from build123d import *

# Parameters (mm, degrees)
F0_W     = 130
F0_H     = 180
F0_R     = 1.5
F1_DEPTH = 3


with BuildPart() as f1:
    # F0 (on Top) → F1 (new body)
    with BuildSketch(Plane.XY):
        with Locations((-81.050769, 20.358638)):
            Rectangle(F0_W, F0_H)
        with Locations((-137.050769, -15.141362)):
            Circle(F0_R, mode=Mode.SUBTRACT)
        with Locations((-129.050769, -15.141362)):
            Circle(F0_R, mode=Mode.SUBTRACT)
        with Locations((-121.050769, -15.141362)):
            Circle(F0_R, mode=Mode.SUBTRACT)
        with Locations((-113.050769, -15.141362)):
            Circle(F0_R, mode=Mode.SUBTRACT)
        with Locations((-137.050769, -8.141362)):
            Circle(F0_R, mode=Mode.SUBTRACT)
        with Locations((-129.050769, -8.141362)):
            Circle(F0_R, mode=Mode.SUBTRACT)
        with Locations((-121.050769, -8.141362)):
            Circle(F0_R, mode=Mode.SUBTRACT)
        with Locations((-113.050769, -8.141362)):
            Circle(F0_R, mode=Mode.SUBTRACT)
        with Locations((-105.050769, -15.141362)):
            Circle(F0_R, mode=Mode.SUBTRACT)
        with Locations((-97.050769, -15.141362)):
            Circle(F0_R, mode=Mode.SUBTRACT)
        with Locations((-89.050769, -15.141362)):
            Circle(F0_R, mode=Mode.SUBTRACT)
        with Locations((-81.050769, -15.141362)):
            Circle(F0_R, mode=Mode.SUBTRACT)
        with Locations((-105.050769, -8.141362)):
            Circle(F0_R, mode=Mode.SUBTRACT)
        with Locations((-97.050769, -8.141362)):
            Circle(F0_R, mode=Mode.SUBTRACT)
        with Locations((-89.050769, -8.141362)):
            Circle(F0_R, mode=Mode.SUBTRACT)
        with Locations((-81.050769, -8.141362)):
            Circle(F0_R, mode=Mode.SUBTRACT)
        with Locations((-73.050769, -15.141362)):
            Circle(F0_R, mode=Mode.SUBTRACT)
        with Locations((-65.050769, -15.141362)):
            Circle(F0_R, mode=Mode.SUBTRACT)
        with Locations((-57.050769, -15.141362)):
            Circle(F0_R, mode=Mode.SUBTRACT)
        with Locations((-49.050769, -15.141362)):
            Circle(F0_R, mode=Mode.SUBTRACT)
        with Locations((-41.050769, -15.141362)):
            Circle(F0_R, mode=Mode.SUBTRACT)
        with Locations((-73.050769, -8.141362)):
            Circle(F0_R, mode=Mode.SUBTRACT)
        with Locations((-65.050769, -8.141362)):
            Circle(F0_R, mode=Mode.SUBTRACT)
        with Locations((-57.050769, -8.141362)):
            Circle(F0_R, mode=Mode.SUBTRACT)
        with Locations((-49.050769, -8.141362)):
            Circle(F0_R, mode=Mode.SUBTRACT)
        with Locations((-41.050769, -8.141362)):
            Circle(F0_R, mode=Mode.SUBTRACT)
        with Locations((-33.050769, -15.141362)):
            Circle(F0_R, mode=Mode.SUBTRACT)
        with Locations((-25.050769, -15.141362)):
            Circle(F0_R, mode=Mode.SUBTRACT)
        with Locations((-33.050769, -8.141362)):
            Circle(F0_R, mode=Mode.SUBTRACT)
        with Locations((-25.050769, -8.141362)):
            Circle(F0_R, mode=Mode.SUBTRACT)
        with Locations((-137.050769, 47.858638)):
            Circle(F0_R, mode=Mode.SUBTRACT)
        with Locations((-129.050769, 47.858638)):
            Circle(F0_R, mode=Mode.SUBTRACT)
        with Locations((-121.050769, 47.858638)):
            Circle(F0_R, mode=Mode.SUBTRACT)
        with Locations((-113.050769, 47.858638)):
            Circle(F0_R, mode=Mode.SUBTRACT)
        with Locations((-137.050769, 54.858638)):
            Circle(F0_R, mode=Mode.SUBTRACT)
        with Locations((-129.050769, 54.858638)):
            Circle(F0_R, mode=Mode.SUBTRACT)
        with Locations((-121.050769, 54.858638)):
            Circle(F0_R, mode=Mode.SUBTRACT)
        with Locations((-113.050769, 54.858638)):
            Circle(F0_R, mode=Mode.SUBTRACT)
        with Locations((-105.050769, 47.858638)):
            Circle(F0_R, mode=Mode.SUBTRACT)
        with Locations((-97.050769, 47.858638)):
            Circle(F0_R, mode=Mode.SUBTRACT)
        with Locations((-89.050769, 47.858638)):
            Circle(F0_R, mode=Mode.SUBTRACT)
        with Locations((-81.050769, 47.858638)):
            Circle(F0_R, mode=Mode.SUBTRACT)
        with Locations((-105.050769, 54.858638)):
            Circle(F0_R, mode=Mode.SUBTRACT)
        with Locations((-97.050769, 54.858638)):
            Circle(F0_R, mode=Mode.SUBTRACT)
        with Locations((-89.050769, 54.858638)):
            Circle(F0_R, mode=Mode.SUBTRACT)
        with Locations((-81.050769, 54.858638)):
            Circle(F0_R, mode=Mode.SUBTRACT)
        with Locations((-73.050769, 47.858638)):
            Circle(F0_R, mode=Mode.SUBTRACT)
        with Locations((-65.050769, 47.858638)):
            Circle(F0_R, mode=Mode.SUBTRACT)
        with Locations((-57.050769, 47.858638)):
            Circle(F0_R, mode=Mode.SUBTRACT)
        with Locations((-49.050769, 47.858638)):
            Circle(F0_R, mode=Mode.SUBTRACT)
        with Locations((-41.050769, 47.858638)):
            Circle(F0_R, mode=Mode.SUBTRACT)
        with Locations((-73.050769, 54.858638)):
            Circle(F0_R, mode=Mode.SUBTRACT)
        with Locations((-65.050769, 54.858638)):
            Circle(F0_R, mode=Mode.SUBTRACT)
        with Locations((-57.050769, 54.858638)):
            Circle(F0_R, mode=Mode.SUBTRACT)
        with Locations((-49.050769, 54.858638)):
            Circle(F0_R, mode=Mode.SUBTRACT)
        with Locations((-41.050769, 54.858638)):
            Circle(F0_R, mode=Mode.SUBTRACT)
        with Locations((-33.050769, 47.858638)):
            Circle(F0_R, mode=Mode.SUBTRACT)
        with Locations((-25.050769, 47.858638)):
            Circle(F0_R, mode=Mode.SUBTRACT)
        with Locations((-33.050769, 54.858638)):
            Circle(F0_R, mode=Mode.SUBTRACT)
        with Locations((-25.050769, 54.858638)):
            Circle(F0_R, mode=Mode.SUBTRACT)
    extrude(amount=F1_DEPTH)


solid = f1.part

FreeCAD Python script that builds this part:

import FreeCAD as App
import Part
import Sketcher
from FreeCAD import Vector
Q = App.Units.Quantity


def add_polygon(sketch, points):
    """Adds a closed chain of lines whose ends are joined by coincident constraints."""
    first, n = sketch.GeometryCount, len(points)
    for a, b in zip(points, points[1:] + points[:1]):
        sketch.addGeometry(Part.LineSegment(App.Vector(*a, 0), App.Vector(*b, 0)), False)
    for i in range(n):
        sketch.addConstraint(Sketcher.Constraint("Coincident", first + i, 2, first + (i + 1) % n, 1))

doc = App.newDocument("Part")
body = doc.addObject("PartDesign::Body", "Body")

sketch1 = doc.addObject("Sketcher::SketchObject", "Sketch")
body.addObject(sketch1)
sketch1.AttachmentSupport = (doc.XY_Plane, [""])
sketch1.MapMode = "FlatFace"
add_polygon(sketch1, [(-146.1, 110.4), (-146.1, -69.6), (-16.1, -69.6), (-16.1, 110.4)])
sketch1.addGeometry(Part.Circle(Vector(-137.1, -15.1, 0), Vector(0, 0, 1), 1.5), False)
sketch1.addGeometry(Part.Circle(Vector(-129.1, -15.1, 0), Vector(0, 0, 1), 1.5), False)
sketch1.addGeometry(Part.Circle(Vector(-137.1, -8.1, 0), Vector(0, 0, 1), 1.5), False)
sketch1.addGeometry(Part.Circle(Vector(-129.1, -8.1, 0), Vector(0, 0, 1), 1.5), False)
sketch1.addGeometry(Part.Circle(Vector(-121.1, -15.1, 0), Vector(0, 0, 1), 1.5), False)
sketch1.addGeometry(Part.Circle(Vector(-113.1, -15.1, 0), Vector(0, 0, 1), 1.5), False)
sketch1.addGeometry(Part.Circle(Vector(-121.1, -8.1, 0), Vector(0, 0, 1), 1.5), False)
sketch1.addGeometry(Part.Circle(Vector(-113.1, -8.1, 0), Vector(0, 0, 1), 1.5), False)
sketch1.addGeometry(Part.Circle(Vector(-105.1, -15.1, 0), Vector(0, 0, 1), 1.5), False)
sketch1.addGeometry(Part.Circle(Vector(-97.1, -15.1, 0), Vector(0, 0, 1), 1.5), False)
sketch1.addGeometry(Part.Circle(Vector(-105.1, -8.1, 0), Vector(0, 0, 1), 1.5), False)
sketch1.addGeometry(Part.Circle(Vector(-97.1, -8.1, 0), Vector(0, 0, 1), 1.5), False)
sketch1.addGeometry(Part.Circle(Vector(-89.1, -15.1, 0), Vector(0, 0, 1), 1.5), False)
sketch1.addGeometry(Part.Circle(Vector(-89.1, -8.1, 0), Vector(0, 0, 1), 1.5), False)
sketch1.addGeometry(Part.Circle(Vector(-81.1, -15.1, 0), Vector(0, 0, 1), 1.5), False)
sketch1.addGeometry(Part.Circle(Vector(-73.1, -15.1, 0), Vector(0, 0, 1), 1.5), False)
sketch1.addGeometry(Part.Circle(Vector(-81.1, -8.1, 0), Vector(0, 0, 1), 1.5), False)
sketch1.addGeometry(Part.Circle(Vector(-73.1, -8.1, 0), Vector(0, 0, 1), 1.5), False)
sketch1.addGeometry(Part.Circle(Vector(-65.1, -15.1, 0), Vector(0, 0, 1), 1.5), False)
sketch1.addGeometry(Part.Circle(Vector(-57.1, -15.1, 0), Vector(0, 0, 1), 1.5), False)
sketch1.addGeometry(Part.Circle(Vector(-65.1, -8.1, 0), Vector(0, 0, 1), 1.5), False)
sketch1.addGeometry(Part.Circle(Vector(-57.1, -8.1, 0), Vector(0, 0, 1), 1.5), False)
sketch1.addGeometry(Part.Circle(Vector(-49.1, -15.1, 0), Vector(0, 0, 1), 1.5), False)
sketch1.addGeometry(Part.Circle(Vector(-41.1, -15.1, 0), Vector(0, 0, 1), 1.5), False)
sketch1.addGeometry(Part.Circle(Vector(-49.1, -8.1, 0), Vector(0, 0, 1), 1.5), False)
sketch1.addGeometry(Part.Circle(Vector(-41.1, -8.1, 0), Vector(0, 0, 1), 1.5), False)
sketch1.addGeometry(Part.Circle(Vector(-33.1, -15.1, 0), Vector(0, 0, 1), 1.5), False)
sketch1.addGeometry(Part.Circle(Vector(-25.1, -15.1, 0), Vector(0, 0, 1), 1.5), False)
sketch1.addGeometry(Part.Circle(Vector(-33.1, -8.1, 0), Vector(0, 0, 1), 1.5), False)
sketch1.addGeometry(Part.Circle(Vector(-25.1, -8.1, 0), Vector(0, 0, 1), 1.5), False)
sketch1.addGeometry(Part.Circle(Vector(-137.1, 47.9, 0), Vector(0, 0, 1), 1.5), False)
sketch1.addGeometry(Part.Circle(Vector(-129.1, 47.9, 0), Vector(0, 0, 1), 1.5), False)
sketch1.addGeometry(Part.Circle(Vector(-137.1, 54.9, 0), Vector(0, 0, 1), 1.5), False)
sketch1.addGeometry(Part.Circle(Vector(-129.1, 54.9, 0), Vector(0, 0, 1), 1.5), False)
sketch1.addGeometry(Part.Circle(Vector(-121.1, 47.9, 0), Vector(0, 0, 1), 1.5), False)
sketch1.addGeometry(Part.Circle(Vector(-113.1, 47.9, 0), Vector(0, 0, 1), 1.5), False)
sketch1.addGeometry(Part.Circle(Vector(-121.1, 54.9, 0), Vector(0, 0, 1), 1.5), False)
sketch1.addGeometry(Part.Circle(Vector(-113.1, 54.9, 0), Vector(0, 0, 1), 1.5), False)
sketch1.addGeometry(Part.Circle(Vector(-105.1, 47.9, 0), Vector(0, 0, 1), 1.5), False)
sketch1.addGeometry(Part.Circle(Vector(-97.1, 47.9, 0), Vector(0, 0, 1), 1.5), False)
sketch1.addGeometry(Part.Circle(Vector(-105.1, 54.9, 0), Vector(0, 0, 1), 1.5), False)
sketch1.addGeometry(Part.Circle(Vector(-97.1, 54.9, 0), Vector(0, 0, 1), 1.5), False)
sketch1.addGeometry(Part.Circle(Vector(-89.1, 47.9, 0), Vector(0, 0, 1), 1.5), False)
sketch1.addGeometry(Part.Circle(Vector(-89.1, 54.9, 0), Vector(0, 0, 1), 1.5), False)
sketch1.addGeometry(Part.Circle(Vector(-81.1, 47.9, 0), Vector(0, 0, 1), 1.5), False)
sketch1.addGeometry(Part.Circle(Vector(-73.1, 47.9, 0), Vector(0, 0, 1), 1.5), False)
sketch1.addGeometry(Part.Circle(Vector(-81.1, 54.9, 0), Vector(0, 0, 1), 1.5), False)
sketch1.addGeometry(Part.Circle(Vector(-73.1, 54.9, 0), Vector(0, 0, 1), 1.5), False)
sketch1.addGeometry(Part.Circle(Vector(-65.1, 47.9, 0), Vector(0, 0, 1), 1.5), False)
sketch1.addGeometry(Part.Circle(Vector(-57.1, 47.9, 0), Vector(0, 0, 1), 1.5), False)
sketch1.addGeometry(Part.Circle(Vector(-65.1, 54.9, 0), Vector(0, 0, 1), 1.5), False)
sketch1.addGeometry(Part.Circle(Vector(-57.1, 54.9, 0), Vector(0, 0, 1), 1.5), False)
sketch1.addGeometry(Part.Circle(Vector(-49.1, 47.9, 0), Vector(0, 0, 1), 1.5), False)
sketch1.addGeometry(Part.Circle(Vector(-41.1, 47.9, 0), Vector(0, 0, 1), 1.5), False)
sketch1.addGeometry(Part.Circle(Vector(-49.1, 54.9, 0), Vector(0, 0, 1), 1.5), False)
sketch1.addGeometry(Part.Circle(Vector(-41.1, 54.9, 0), Vector(0, 0, 1), 1.5), False)
sketch1.addGeometry(Part.Circle(Vector(-33.1, 47.9, 0), Vector(0, 0, 1), 1.5), False)
sketch1.addGeometry(Part.Circle(Vector(-25.1, 47.9, 0), Vector(0, 0, 1), 1.5), False)
sketch1.addGeometry(Part.Circle(Vector(-33.1, 54.9, 0), Vector(0, 0, 1), 1.5), False)
sketch1.addGeometry(Part.Circle(Vector(-25.1, 54.9, 0), Vector(0, 0, 1), 1.5), False)
sketch1.addConstraint([
    Sketcher.Constraint("Vertical", 0),
    Sketcher.Constraint("Horizontal", 1),
    Sketcher.Constraint("Vertical", 2),
    Sketcher.Constraint("Horizontal", 3),
    Sketcher.Constraint("Equal", 4, 5),
    Sketcher.Constraint("Equal", 5, 6),
    Sketcher.Constraint("Equal", 6, 7),
    Sketcher.Constraint("Equal", 7, 8),
    Sketcher.Constraint("Equal", 8, 9),
    Sketcher.Constraint("Equal", 9, 10),
    Sketcher.Constraint("Equal", 10, 11),
    Sketcher.Constraint("Equal", 11, 12),
    Sketcher.Constraint("Equal", 12, 13),
    Sketcher.Constraint("Equal", 13, 14),
    Sketcher.Constraint("Equal", 14, 15),
    Sketcher.Constraint("Equal", 15, 16),
    Sketcher.Constraint("Equal", 16, 17),
    Sketcher.Constraint("Equal", 17, 18),
    Sketcher.Constraint("Equal", 18, 19),
    Sketcher.Constraint("Equal", 19, 20),
    Sketcher.Constraint("Equal", 20, 21),
    Sketcher.Constraint("Equal", 21, 22),
    Sketcher.Constraint("Equal", 22, 23),
    Sketcher.Constraint("Equal", 23, 24),
    Sketcher.Constraint("Equal", 24, 25),
    Sketcher.Constraint("Equal", 25, 26),
    Sketcher.Constraint("Equal", 26, 27),
    Sketcher.Constraint("Equal", 27, 28),
    Sketcher.Constraint("Equal", 28, 29),
    Sketcher.Constraint("Equal", 29, 30),
    Sketcher.Constraint("Equal", 30, 31),
    Sketcher.Constraint("Equal", 31, 32),
    Sketcher.Constraint("Equal", 32, 33),
    Sketcher.Constraint("Equal", 33, 34),
    Sketcher.Constraint("Equal", 34, 35),
    Sketcher.Constraint("Equal", 35, 36),
    Sketcher.Constraint("Equal", 36, 37),
    Sketcher.Constraint("Equal", 37, 38),
    Sketcher.Constraint("Equal", 38, 39),
    Sketcher.Constraint("Equal", 39, 40),
    Sketcher.Constraint("Equal", 40, 41),
    Sketcher.Constraint("Equal", 41, 42),
    Sketcher.Constraint("Equal", 42, 43),
    Sketcher.Constraint("Equal", 43, 44),
    Sketcher.Constraint("Equal", 44, 45),
    Sketcher.Constraint("Equal", 45, 46),
    Sketcher.Constraint("Equal", 46, 47),
    Sketcher.Constraint("Equal", 47, 48),
    Sketcher.Constraint("Equal", 48, 49),
    Sketcher.Constraint("Equal", 49, 50),
    Sketcher.Constraint("Equal", 50, 51),
    Sketcher.Constraint("Equal", 51, 52),
    Sketcher.Constraint("Equal", 52, 53),
    Sketcher.Constraint("Equal", 53, 54),
    Sketcher.Constraint("Equal", 54, 55),
    Sketcher.Constraint("Equal", 55, 56),
    Sketcher.Constraint("Equal", 56, 57),
    Sketcher.Constraint("Equal", 57, 58),
    Sketcher.Constraint("Equal", 58, 59),
    Sketcher.Constraint("Equal", 59, 60),
    Sketcher.Constraint("Equal", 60, 61),
    Sketcher.Constraint("Equal", 61, 62),
    Sketcher.Constraint("Equal", 62, 63),
    Sketcher.Constraint("Horizontal", 4, 3, 5, 3),
    Sketcher.Constraint("Horizontal", 6, 3, 7, 3),
    Sketcher.Constraint("Horizontal", 5, 3, 8, 3),
    Sketcher.Constraint("Horizontal", 8, 3, 9, 3),
    Sketcher.Constraint("Horizontal", 7, 3, 10, 3),
    Sketcher.Constraint("Horizontal", 10, 3, 11, 3),
    Sketcher.Constraint("Horizontal", 9, 3, 12, 3),
    Sketcher.Constraint("Horizontal", 12, 3, 13, 3),
    Sketcher.Constraint("Horizontal", 11, 3, 14, 3),
    Sketcher.Constraint("Horizontal", 14, 3, 15, 3),
    Sketcher.Constraint("Horizontal", 13, 3, 16, 3),
    Sketcher.Constraint("Horizontal", 15, 3, 17, 3),
    Sketcher.Constraint("Horizontal", 16, 3, 18, 3),
    Sketcher.Constraint("Horizontal", 18, 3, 19, 3),
    Sketcher.Constraint("Horizontal", 17, 3, 20, 3),
    Sketcher.Constraint("Horizontal", 20, 3, 21, 3),
    Sketcher.Constraint("Horizontal", 19, 3, 22, 3),
    Sketcher.Constraint("Horizontal", 22, 3, 23, 3),
    Sketcher.Constraint("Horizontal", 21, 3, 24, 3),
    Sketcher.Constraint("Horizontal", 24, 3, 25, 3),
    Sketcher.Constraint("Horizontal", 23, 3, 26, 3),
    Sketcher.Constraint("Horizontal", 26, 3, 27, 3),
    Sketcher.Constraint("Horizontal", 25, 3, 28, 3),
    Sketcher.Constraint("Horizontal", 28, 3, 29, 3),
    Sketcher.Constraint("Horizontal", 27, 3, 30, 3),
    Sketcher.Constraint("Horizontal", 30, 3, 31, 3),
    Sketcher.Constraint("Horizontal", 29, 3, 32, 3),
    Sketcher.Constraint("Horizontal", 32, 3, 33, 3),
    Sketcher.Constraint("Horizontal", 34, 3, 35, 3),
    Sketcher.Constraint("Horizontal", 36, 3, 37, 3),
    Sketcher.Constraint("Horizontal", 35, 3, 38, 3),
    Sketcher.Constraint("Horizontal", 38, 3, 39, 3),
    Sketcher.Constraint("Horizontal", 37, 3, 40, 3),
    Sketcher.Constraint("Horizontal", 40, 3, 41, 3),
    Sketcher.Constraint("Horizontal", 39, 3, 42, 3),
    Sketcher.Constraint("Horizontal", 42, 3, 43, 3),
    Sketcher.Constraint("Horizontal", 41, 3, 44, 3),
    Sketcher.Constraint("Horizontal", 44, 3, 45, 3),
    Sketcher.Constraint("Horizontal", 43, 3, 46, 3),
    Sketcher.Constraint("Horizontal", 45, 3, 47, 3),
    Sketcher.Constraint("Horizontal", 46, 3, 48, 3),
    Sketcher.Constraint("Horizontal", 48, 3, 49, 3),
    Sketcher.Constraint("Horizontal", 47, 3, 50, 3),
    Sketcher.Constraint("Horizontal", 50, 3, 51, 3),
    Sketcher.Constraint("Horizontal", 49, 3, 52, 3),
    Sketcher.Constraint("Horizontal", 52, 3, 53, 3),
    Sketcher.Constraint("Horizontal", 51, 3, 54, 3),
    Sketcher.Constraint("Horizontal", 54, 3, 55, 3),
    Sketcher.Constraint("Horizontal", 53, 3, 56, 3),
    Sketcher.Constraint("Horizontal", 56, 3, 57, 3),
    Sketcher.Constraint("Horizontal", 55, 3, 58, 3),
    Sketcher.Constraint("Horizontal", 58, 3, 59, 3),
    Sketcher.Constraint("Horizontal", 57, 3, 60, 3),
    Sketcher.Constraint("Horizontal", 60, 3, 61, 3),
    Sketcher.Constraint("Horizontal", 59, 3, 62, 3),
    Sketcher.Constraint("Horizontal", 62, 3, 63, 3),
    Sketcher.Constraint("Vertical", 4, 3, 6, 3),
    Sketcher.Constraint("Vertical", 5, 3, 7, 3),
    Sketcher.Constraint("Vertical", 8, 3, 10, 3),
    Sketcher.Constraint("Vertical", 9, 3, 11, 3),
    Sketcher.Constraint("Vertical", 12, 3, 14, 3),
    Sketcher.Constraint("Vertical", 13, 3, 15, 3),
    Sketcher.Constraint("Vertical", 16, 3, 17, 3),
    Sketcher.Constraint("Vertical", 18, 3, 20, 3),
    Sketcher.Constraint("Vertical", 19, 3, 21, 3),
    Sketcher.Constraint("Vertical", 22, 3, 24, 3),
    Sketcher.Constraint("Vertical", 23, 3, 25, 3),
    Sketcher.Constraint("Vertical", 26, 3, 28, 3),
    Sketcher.Constraint("Vertical", 27, 3, 29, 3),
    Sketcher.Constraint("Vertical", 30, 3, 32, 3),
    Sketcher.Constraint("Vertical", 31, 3, 33, 3),
    Sketcher.Constraint("Vertical", 6, 3, 34, 3),
    Sketcher.Constraint("Vertical", 7, 3, 35, 3),
    Sketcher.Constraint("Vertical", 34, 3, 36, 3),
    Sketcher.Constraint("Vertical", 35, 3, 37, 3),
    Sketcher.Constraint("Vertical", 10, 3, 38, 3),
    Sketcher.Constraint("Vertical", 11, 3, 39, 3),
    Sketcher.Constraint("Vertical", 38, 3, 40, 3),
    Sketcher.Constraint("Vertical", 39, 3, 41, 3),
    Sketcher.Constraint("Vertical", 14, 3, 42, 3),
    Sketcher.Constraint("Vertical", 15, 3, 43, 3),
    Sketcher.Constraint("Vertical", 42, 3, 44, 3),
    Sketcher.Constraint("Vertical", 43, 3, 45, 3),
    Sketcher.Constraint("Vertical", 17, 3, 46, 3),
    Sketcher.Constraint("Vertical", 46, 3, 47, 3),
    Sketcher.Constraint("Vertical", 20, 3, 48, 3),
    Sketcher.Constraint("Vertical", 21, 3, 49, 3),
    Sketcher.Constraint("Vertical", 48, 3, 50, 3),
    Sketcher.Constraint("Vertical", 49, 3, 51, 3),
    Sketcher.Constraint("Vertical", 24, 3, 52, 3),
    Sketcher.Constraint("Vertical", 25, 3, 53, 3),
    Sketcher.Constraint("Vertical", 52, 3, 54, 3),
    Sketcher.Constraint("Vertical", 53, 3, 55, 3),
    Sketcher.Constraint("Vertical", 28, 3, 56, 3),
    Sketcher.Constraint("Vertical", 29, 3, 57, 3),
    Sketcher.Constraint("Vertical", 56, 3, 58, 3),
    Sketcher.Constraint("Vertical", 57, 3, 59, 3),
    Sketcher.Constraint("Vertical", 32, 3, 60, 3),
    Sketcher.Constraint("Vertical", 33, 3, 61, 3),
    Sketcher.Constraint("Vertical", 60, 3, 62, 3),
    Sketcher.Constraint("Vertical", 61, 3, 63, 3),
    Sketcher.Constraint("Diameter", 4, Q("3 mm")),
    Sketcher.Constraint("DistanceX", 1, 1, 1, 2, Q("130 mm")),
    Sketcher.Constraint("DistanceY", 0, 2, 0, 1, Q("180 mm")),
    Sketcher.Constraint("DistanceX", 4, 3, -1, 1, Q("137.050769 mm")),
    Sketcher.Constraint("DistanceX", 5, 3, -1, 1, Q("129.050769 mm")),
    Sketcher.Constraint("DistanceX", 8, 3, -1, 1, Q("121.050769 mm")),
    Sketcher.Constraint("DistanceX", 9, 3, -1, 1, Q("113.050769 mm")),
    Sketcher.Constraint("DistanceX", 12, 3, -1, 1, Q("105.050769 mm")),
    Sketcher.Constraint("DistanceX", 13, 3, -1, 1, Q("97.050769 mm")),
    Sketcher.Constraint("DistanceX", 16, 3, -1, 1, Q("89.050769 mm")),
    Sketcher.Constraint("DistanceX", 18, 3, -1, 1, Q("81.050769 mm")),
    Sketcher.Constraint("DistanceX", 19, 3, -1, 1, Q("73.050769 mm")),
    Sketcher.Constraint("DistanceX", 22, 3, -1, 1, Q("65.050769 mm")),
    Sketcher.Constraint("DistanceX", 23, 3, -1, 1, Q("57.050769 mm")),
    Sketcher.Constraint("DistanceX", 26, 3, -1, 1, Q("49.050769 mm")),
    Sketcher.Constraint("DistanceX", 27, 3, -1, 1, Q("41.050769 mm")),
    Sketcher.Constraint("DistanceX", 30, 3, -1, 1, Q("33.050769 mm")),
    Sketcher.Constraint("DistanceX", 31, 3, -1, 1, Q("25.050769 mm")),
    Sketcher.Constraint("DistanceX", 0, 2, -1, 1, Q("146.050769 mm")),
    Sketcher.Constraint("DistanceY", 0, 2, -1, 1, Q("69.641362 mm")),
    Sketcher.Constraint("DistanceY", 4, 3, -1, 1, Q("15.141362 mm")),
    Sketcher.Constraint("DistanceY", 6, 3, -1, 1, Q("8.141362 mm")),
    Sketcher.Constraint("DistanceY", -1, 1, 34, 3, Q("47.858638 mm")),
    Sketcher.Constraint("DistanceY", -1, 1, 36, 3, Q("54.858638 mm")),
])
pad1 = doc.addObject("PartDesign::Pad", "Pad")
body.addObject(pad1)
pad1.Profile = sketch1
pad1.Length = 3

doc.recompute()
